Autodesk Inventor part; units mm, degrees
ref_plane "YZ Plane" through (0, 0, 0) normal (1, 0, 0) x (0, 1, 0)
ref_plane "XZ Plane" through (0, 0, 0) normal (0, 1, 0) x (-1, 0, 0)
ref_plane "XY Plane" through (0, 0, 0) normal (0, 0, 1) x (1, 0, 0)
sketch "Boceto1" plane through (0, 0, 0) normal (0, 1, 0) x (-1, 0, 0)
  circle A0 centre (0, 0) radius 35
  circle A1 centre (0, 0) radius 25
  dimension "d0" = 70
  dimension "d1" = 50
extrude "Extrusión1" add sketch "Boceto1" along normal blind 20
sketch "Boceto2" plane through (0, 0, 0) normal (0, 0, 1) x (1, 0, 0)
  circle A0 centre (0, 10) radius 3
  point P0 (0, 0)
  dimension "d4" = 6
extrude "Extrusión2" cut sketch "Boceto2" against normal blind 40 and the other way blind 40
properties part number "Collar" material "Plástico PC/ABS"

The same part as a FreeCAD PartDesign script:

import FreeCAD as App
import Part
import Sketcher

V = App.Vector

doc = App.newDocument("Part")
params = doc.addObject("Spreadsheet::Sheet", "Params")
for row, (alias, value) in enumerate([
    ("sketch1_diameter", "70 mm"),
    ("sketch1_diameter2", "50 mm"),
    ("pad1_length", "20 mm"),
    ("sketch2_diameter", "6 mm"),
], start=1):
    params.set(f"A{row}", alias)
    params.set(f"B{row}", "=" + value)
    params.setAlias(f"B{row}", alias)

body = doc.addObject("PartDesign::Body", "Body")

sketch1 = body.newObject("Sketcher::SketchObject", "Sketch")
sketch1.AttachmentSupport = (doc.getObject("XZ_Plane"), [""])
sketch1.MapMode = "FlatFace"
sketch1.addGeometry([
    Part.Circle(V(0, 0, 0), V(0, 0, 1), 35),
    Part.Circle(V(0, 0, 0), V(0, 0, 1), 25),
], False)
sketch1.addConstraint([
    Sketcher.Constraint("Coincident", 0, 3, -1, 1),
    Sketcher.Constraint("Coincident", 1, 3, -1, 1),
    Sketcher.Constraint("Diameter", 0, 70.0),
    Sketcher.Constraint("Diameter", 1, 50.0),
])
sketch1.setExpression("Constraints[2]", "Params.sketch1_diameter")
sketch1.setExpression("Constraints[3]", "Params.sketch1_diameter2")
pad1 = body.newObject("PartDesign::Pad", "Pad")
pad1.Profile = sketch1
pad1.setExpression("Length", "Params.pad1_length")
pad1.Reversed = True

sketch2 = body.newObject("Sketcher::SketchObject", "Sketch001")
sketch2.AttachmentSupport = (doc.getObject("XY_Plane"), [""])
sketch2.MapMode = "FlatFace"
sketch2.addGeometry(Part.Circle(V(0, 10, 0), V(0, 0, 1), 3), False)
sketch2.addConstraint([
    Sketcher.Constraint("PointOnObject", 0, 3, -2),
    Sketcher.Constraint("Diameter", 0, 6.0),
    Sketcher.Constraint("DistanceY", -1, 1, 0, 3, 10.0),
])
sketch2.setExpression("Constraints[1]", "Params.sketch2_diameter")
pocket1 = body.newObject("PartDesign::Pocket", "Pocket")
pocket1.Profile = sketch2
pocket1.Type = "ThroughAll"
pocket1.Midplane = True

doc.recompute()
